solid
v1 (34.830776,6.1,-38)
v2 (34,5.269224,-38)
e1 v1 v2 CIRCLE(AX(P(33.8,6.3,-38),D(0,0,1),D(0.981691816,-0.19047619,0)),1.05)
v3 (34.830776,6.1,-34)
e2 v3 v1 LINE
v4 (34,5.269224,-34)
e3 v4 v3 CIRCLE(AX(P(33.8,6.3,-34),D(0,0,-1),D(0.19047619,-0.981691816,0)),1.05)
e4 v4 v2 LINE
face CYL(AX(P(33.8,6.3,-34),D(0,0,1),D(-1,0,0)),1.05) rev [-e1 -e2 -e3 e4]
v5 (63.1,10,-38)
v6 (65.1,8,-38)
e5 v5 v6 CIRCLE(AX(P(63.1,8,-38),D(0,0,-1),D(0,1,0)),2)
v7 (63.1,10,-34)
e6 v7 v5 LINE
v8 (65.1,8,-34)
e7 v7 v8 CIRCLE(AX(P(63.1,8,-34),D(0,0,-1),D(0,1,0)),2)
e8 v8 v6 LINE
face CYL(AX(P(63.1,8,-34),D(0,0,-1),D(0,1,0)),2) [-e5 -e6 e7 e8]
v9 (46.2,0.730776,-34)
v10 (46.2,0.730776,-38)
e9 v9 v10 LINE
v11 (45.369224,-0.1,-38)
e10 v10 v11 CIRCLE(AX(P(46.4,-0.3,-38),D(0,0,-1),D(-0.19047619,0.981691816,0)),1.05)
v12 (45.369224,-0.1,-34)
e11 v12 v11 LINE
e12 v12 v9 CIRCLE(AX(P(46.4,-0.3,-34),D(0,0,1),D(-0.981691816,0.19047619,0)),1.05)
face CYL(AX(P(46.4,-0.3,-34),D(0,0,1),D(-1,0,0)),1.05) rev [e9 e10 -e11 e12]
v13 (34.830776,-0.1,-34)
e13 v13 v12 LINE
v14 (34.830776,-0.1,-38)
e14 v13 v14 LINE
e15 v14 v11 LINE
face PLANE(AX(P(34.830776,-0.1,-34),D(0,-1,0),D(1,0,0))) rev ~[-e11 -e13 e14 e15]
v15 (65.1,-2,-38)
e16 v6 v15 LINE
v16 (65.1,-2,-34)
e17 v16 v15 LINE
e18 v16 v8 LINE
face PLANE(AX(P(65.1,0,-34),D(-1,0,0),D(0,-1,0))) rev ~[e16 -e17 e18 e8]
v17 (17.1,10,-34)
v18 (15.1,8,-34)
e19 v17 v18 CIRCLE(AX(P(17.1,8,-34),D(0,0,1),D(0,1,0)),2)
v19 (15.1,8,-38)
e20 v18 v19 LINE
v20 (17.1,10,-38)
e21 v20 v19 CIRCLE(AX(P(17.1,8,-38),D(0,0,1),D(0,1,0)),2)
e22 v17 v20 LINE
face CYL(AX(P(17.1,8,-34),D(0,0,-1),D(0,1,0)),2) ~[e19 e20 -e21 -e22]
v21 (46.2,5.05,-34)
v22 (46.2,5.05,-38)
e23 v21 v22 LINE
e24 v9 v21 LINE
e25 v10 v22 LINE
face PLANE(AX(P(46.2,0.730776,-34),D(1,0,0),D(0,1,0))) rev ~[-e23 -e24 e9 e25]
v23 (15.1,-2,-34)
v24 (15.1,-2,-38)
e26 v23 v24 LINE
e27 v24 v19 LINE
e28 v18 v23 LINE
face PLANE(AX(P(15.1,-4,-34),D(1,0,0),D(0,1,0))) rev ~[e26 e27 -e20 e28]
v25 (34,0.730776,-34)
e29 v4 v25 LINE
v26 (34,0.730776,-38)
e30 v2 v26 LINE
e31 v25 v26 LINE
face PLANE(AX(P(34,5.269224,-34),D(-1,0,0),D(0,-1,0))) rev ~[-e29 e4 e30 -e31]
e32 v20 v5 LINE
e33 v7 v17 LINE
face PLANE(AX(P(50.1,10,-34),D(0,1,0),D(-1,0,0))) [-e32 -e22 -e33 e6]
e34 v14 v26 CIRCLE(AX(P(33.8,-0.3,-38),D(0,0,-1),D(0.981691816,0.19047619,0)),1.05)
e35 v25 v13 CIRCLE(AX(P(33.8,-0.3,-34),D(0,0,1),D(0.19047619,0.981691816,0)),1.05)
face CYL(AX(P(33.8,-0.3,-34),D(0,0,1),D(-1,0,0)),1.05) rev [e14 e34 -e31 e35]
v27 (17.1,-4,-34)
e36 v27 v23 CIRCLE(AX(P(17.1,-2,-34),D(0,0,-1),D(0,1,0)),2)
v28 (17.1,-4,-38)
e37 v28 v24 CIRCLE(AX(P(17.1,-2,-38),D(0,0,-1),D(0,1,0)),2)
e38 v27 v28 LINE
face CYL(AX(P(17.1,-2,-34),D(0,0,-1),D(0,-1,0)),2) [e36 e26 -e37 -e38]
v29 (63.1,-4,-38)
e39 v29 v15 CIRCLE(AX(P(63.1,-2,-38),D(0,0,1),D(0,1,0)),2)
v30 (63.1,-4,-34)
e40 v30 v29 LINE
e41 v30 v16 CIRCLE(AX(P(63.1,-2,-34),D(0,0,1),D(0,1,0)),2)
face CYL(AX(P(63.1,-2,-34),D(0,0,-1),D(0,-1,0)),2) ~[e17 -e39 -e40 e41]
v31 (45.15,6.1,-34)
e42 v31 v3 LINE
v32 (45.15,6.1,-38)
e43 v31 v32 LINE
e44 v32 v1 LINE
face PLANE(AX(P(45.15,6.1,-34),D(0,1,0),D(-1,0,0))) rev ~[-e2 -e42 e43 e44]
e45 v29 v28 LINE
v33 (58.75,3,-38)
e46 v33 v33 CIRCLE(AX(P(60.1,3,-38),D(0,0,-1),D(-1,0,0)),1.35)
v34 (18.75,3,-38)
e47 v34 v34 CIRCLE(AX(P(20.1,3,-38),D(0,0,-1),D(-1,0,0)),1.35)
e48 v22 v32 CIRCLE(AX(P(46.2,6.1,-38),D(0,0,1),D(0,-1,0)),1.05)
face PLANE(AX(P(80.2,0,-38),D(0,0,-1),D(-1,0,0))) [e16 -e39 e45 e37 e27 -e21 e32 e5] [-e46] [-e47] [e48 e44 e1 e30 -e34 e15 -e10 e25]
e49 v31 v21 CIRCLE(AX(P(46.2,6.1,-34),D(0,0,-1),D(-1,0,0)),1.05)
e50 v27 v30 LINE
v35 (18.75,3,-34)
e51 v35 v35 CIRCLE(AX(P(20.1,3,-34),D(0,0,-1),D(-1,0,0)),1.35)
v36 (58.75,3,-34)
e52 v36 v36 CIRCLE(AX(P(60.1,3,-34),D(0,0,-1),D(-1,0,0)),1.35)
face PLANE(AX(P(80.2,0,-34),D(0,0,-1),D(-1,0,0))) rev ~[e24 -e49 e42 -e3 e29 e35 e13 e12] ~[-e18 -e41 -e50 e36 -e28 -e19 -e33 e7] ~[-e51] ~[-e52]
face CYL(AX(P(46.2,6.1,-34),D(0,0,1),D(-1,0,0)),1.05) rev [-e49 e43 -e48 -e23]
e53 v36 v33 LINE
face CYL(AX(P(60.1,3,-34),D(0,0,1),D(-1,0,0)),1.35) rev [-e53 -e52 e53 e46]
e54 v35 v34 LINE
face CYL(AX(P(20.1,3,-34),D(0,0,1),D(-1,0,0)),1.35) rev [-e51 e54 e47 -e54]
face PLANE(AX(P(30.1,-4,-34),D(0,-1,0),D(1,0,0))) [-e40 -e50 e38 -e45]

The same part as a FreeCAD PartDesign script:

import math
import FreeCAD as App
import Part
import Sketcher
Q = App.Units.Quantity


def edges_at(feature, points):
    """Names of the edges that pass closest to the given points."""
    edges = feature.Shape.Edges
    near = lambda p: min(range(len(edges)), key=lambda i: edges[i].distToShape(Part.Vertex(*p))[0])
    return sorted({f"Edge{near(p) + 1}" for p in points})

doc = App.newDocument("Part")
body = doc.addObject("PartDesign::Body", "Body")

sketch1 = body.newObject("Sketcher::SketchObject", "Sketch")
sketch1.AttachmentSupport = (doc.getObject("XY_Plane"), [""])
sketch1.MapMode = "FlatFace"
sketch1.AttachmentOffset = App.Placement(App.Vector(0, 0, -34), App.Rotation())
sketch1.addGeometry(Part.LineSegment(App.Vector(15.1, -4, 0), App.Vector(15.1, 10, 0)), False)
sketch1.addGeometry(Part.LineSegment(App.Vector(15.1, 10, 0), App.Vector(65.1, 10, 0)), False)
sketch1.addGeometry(Part.LineSegment(App.Vector(65.1, 10, 0), App.Vector(65.1, -4, 0)), False)
sketch1.addGeometry(Part.LineSegment(App.Vector(65.1, -4, 0), App.Vector(15.1, -4, 0)), False)
sketch1.addGeometry(Part.LineSegment(App.Vector(34.8, -0.1, 0), App.Vector(45.4, -0.1, 0)), False)
sketch1.addGeometry(Part.ArcOfCircle(Part.Circle(App.Vector(46.4, -0.3, 0), App.Vector(0, 0, 1), 1.1), math.radians(169), math.radians(461)), False)
sketch1.addGeometry(Part.LineSegment(App.Vector(46.2, 0.7, 0), App.Vector(46.2, 5, 0)), False)
sketch1.addGeometry(Part.ArcOfCircle(Part.Circle(App.Vector(46.2, 6.1, 0), App.Vector(0, 0, 1), 1.1), math.radians(-90), math.radians(180)), False)
sketch1.addGeometry(Part.LineSegment(App.Vector(45.1, 6.1, 0), App.Vector(34.8, 6.1, 0)), False)
sketch1.addGeometry(Part.ArcOfCircle(Part.Circle(App.Vector(33.8, 6.3, 0), App.Vector(0, 0, 1), 1.1), math.radians(-11), math.radians(281)), False)
sketch1.addGeometry(Part.LineSegment(App.Vector(34, 5.3, 0), App.Vector(34, 0.7, 0)), False)
sketch1.addGeometry(Part.ArcOfCircle(Part.Circle(App.Vector(33.8, -0.3, 0), App.Vector(0, 0, 1), 1.1), math.radians(79), math.radians(371)), False)
sketch1.addGeometry(Part.Circle(App.Vector(20.1, 3, 0), App.Vector(0, 0, 1), 1.4), False)
sketch1.addGeometry(Part.Circle(App.Vector(60.1, 3, 0), App.Vector(0, 0, 1), 1.4), False)
sketch1.addConstraint(Sketcher.Constraint("Coincident", 0, 2, 1, 1))
sketch1.addConstraint(Sketcher.Constraint("Coincident", 1, 2, 2, 1))
sketch1.addConstraint(Sketcher.Constraint("Coincident", 2, 2, 3, 1))
sketch1.addConstraint(Sketcher.Constraint("Coincident", 3, 2, 0, 1))
sketch1.addConstraint(Sketcher.Constraint("Coincident", 4, 2, 5, 1))
sketch1.addConstraint(Sketcher.Constraint("Coincident", 5, 2, 6, 1))
sketch1.addConstraint(Sketcher.Constraint("Coincident", 6, 2, 7, 1))
sketch1.addConstraint(Sketcher.Constraint("Coincident", 7, 2, 8, 1))
sketch1.addConstraint(Sketcher.Constraint("Coincident", 8, 2, 9, 1))
sketch1.addConstraint(Sketcher.Constraint("Coincident", 9, 2, 10, 1))
sketch1.addConstraint(Sketcher.Constraint("Coincident", 10, 2, 11, 1))
sketch1.addConstraint(Sketcher.Constraint("Coincident", 11, 2, 4, 1))
sketch1.addConstraint(Sketcher.Constraint("Vertical", 0))
sketch1.addConstraint(Sketcher.Constraint("Horizontal", 1))
sketch1.addConstraint(Sketcher.Constraint("Vertical", 2))
sketch1.addConstraint(Sketcher.Constraint("Horizontal", 3))
sketch1.addConstraint(Sketcher.Constraint("Horizontal", 4))
sketch1.addConstraint(Sketcher.Constraint("Vertical", 6))
sketch1.addConstraint(Sketcher.Constraint("Horizontal", 8))
sketch1.addConstraint(Sketcher.Constraint("Vertical", 10))
sketch1.addConstraint(Sketcher.Constraint("Equal", 5, 7))
sketch1.addConstraint(Sketcher.Constraint("Equal", 7, 9))
sketch1.addConstraint(Sketcher.Constraint("Equal", 9, 11))
sketch1.addConstraint(Sketcher.Constraint("Equal", 12, 13))
sketch1.addConstraint(Sketcher.Constraint("Horizontal", 5, 3, 11, 3))
sketch1.addConstraint(Sketcher.Constraint("Horizontal", 12, 3, 13, 3))
sketch1.addConstraint(Sketcher.Constraint("Horizontal", 5, 2, 10, 2))
sketch1.addConstraint(Sketcher.Constraint("Vertical", 9, 3, 11, 3))
sketch1.addConstraint(Sketcher.Constraint("Vertical", 7, 3, 5, 2))
sketch1.addConstraint(Sketcher.Constraint("Vertical", 8, 2, 11, 2))
sketch1.addConstraint(Sketcher.Constraint("DistanceY", 0, 1, 0, 2, Q("14 mm")))
sketch1.addConstraint(Sketcher.Constraint("Radius", 5, Q("1.05 mm")))
sketch1.addConstraint(Sketcher.Constraint("DistanceY", -1, 1, 0, 2, Q("10 mm")))
sketch1.addConstraint(Sketcher.Constraint("Diameter", 12, Q("2.7 mm")))
sketch1.addConstraint(Sketcher.Constraint("DistanceY", 4, 2, -1, 1, Q("0.1 mm")))
sketch1.addConstraint(Sketcher.Constraint("DistanceX", 1, 1, 1, 2, Q("50 mm")))
sketch1.addConstraint(Sketcher.Constraint("DistanceY", -1, 1, 12, 3, Q("3 mm")))
sketch1.addConstraint(Sketcher.Constraint("DistanceX", -1, 1, 9, 2, Q("34 mm")))
sketch1.addConstraint(Sketcher.Constraint("DistanceX", 12, 3, 13, 3, Q("40 mm")))
sketch1.addConstraint(Sketcher.Constraint("DistanceX", 0, 2, 12, 3, Q("5 mm")))
sketch1.addConstraint(Sketcher.Constraint("DistanceX", -1, 1, 5, 3, Q("46.4 mm")))
sketch1.addConstraint(Sketcher.Constraint("DistanceY", 5, 3, -1, 1, Q("0.3 mm")))
sketch1.addConstraint(Sketcher.Constraint("DistanceX", -1, 1, 7, 3, Q("46.2 mm")))
sketch1.addConstraint(Sketcher.Constraint("DistanceY", -1, 1, 7, 3, Q("6.1 mm")))
sketch1.addConstraint(Sketcher.Constraint("DistanceY", -1, 1, 9, 3, Q("6.3 mm")))
sketch1.addConstraint(Sketcher.Constraint("DistanceX", -1, 1, 12, 3, Q("20.1 mm")))
pad1 = body.newObject("PartDesign::Pad", "Pad")
pad1.Profile = sketch1
pad1.Length = 4
pad1.Reversed = True
doc.recompute()

fillet = body.newObject("PartDesign::Fillet", "Fillet")
fillet.Base = (pad1, edges_at(pad1, [
    (15.1, -4, -36),
    (15.1, 10, -36),
    (65.1, -4, -36),
    (65.1, 10, -36),
]))
fillet.Radius = 2

doc.recompute()
